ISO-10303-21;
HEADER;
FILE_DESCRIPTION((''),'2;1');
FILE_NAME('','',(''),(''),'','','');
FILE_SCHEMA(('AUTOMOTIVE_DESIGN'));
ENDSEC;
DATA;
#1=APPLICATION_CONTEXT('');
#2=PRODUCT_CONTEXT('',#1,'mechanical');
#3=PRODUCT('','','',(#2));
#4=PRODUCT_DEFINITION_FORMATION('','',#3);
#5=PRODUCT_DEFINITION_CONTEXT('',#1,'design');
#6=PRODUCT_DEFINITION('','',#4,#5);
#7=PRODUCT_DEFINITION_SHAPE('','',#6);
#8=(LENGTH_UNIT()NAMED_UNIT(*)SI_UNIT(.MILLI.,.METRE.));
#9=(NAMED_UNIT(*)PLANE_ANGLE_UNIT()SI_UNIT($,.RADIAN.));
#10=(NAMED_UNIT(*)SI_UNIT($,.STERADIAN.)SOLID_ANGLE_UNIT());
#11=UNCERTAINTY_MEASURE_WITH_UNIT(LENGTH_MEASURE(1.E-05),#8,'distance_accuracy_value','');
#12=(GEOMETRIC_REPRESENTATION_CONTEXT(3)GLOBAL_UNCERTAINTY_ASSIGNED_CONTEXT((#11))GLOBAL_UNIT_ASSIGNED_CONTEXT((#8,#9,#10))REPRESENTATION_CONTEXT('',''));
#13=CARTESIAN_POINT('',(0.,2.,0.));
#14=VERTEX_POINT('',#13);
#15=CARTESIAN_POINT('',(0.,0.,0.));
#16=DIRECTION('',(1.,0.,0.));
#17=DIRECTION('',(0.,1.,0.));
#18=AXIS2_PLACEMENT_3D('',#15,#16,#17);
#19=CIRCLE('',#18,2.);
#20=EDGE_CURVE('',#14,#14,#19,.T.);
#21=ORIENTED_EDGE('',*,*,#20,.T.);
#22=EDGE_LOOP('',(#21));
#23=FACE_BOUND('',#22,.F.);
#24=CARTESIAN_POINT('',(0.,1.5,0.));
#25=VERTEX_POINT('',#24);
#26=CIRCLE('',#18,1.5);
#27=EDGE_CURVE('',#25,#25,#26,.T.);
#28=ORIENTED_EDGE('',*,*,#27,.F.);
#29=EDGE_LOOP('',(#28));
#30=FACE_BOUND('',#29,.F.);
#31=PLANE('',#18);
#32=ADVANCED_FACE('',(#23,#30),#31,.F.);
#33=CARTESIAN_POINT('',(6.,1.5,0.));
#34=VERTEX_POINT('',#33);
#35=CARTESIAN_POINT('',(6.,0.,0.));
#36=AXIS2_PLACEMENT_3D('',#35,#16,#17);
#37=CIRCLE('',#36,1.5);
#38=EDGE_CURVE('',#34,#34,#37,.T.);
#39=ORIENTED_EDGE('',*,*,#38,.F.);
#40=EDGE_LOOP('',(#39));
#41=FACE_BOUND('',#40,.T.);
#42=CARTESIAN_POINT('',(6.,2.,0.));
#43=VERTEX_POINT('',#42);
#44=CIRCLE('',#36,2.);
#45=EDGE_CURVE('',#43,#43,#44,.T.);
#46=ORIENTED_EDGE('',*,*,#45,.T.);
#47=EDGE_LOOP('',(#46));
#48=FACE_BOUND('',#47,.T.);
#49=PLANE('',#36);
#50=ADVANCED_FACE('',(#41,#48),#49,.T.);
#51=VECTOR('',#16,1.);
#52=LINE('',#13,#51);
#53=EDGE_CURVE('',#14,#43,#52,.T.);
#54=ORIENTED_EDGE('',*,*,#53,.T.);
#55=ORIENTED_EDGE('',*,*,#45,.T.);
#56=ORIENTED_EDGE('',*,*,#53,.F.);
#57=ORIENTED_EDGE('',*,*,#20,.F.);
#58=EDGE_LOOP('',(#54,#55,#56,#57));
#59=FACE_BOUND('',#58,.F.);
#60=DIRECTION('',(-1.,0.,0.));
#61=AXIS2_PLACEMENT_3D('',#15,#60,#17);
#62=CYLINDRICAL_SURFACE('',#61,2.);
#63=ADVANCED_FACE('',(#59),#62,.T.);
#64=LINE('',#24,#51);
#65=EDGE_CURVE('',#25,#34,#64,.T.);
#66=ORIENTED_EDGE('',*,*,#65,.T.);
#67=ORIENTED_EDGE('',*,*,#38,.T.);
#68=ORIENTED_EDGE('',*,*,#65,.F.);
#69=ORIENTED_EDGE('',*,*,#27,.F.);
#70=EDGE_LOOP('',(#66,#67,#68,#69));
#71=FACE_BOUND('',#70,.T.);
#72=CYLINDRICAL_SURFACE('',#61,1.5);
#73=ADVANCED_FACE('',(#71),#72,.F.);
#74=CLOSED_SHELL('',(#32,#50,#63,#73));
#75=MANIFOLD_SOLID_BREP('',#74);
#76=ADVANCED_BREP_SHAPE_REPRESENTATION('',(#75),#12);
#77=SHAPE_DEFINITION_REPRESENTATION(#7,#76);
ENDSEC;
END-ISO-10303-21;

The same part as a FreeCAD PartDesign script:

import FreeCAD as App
import Part
import Sketcher
from FreeCAD import Vector

doc = App.newDocument("Part")
body = doc.addObject("PartDesign::Body", "Body")

# Sketch on YZ plane
sketch1 = body.newObject("Sketcher::SketchObject", "Sketch")
sketch1.AttachmentSupport = (doc.getObject("YZ_Plane"), [""])
sketch1.MapMode = "FlatFace"
sketch1.addGeometry([
    Part.Circle(Vector(0, 0, 0), Vector(0, 0, 1), 2),
    Part.Circle(Vector(0, 0, 0), Vector(0, 0, 1), 1.5),
], False)
sketch1.addConstraint([
    Sketcher.Constraint("Coincident", 0, 3, -1, 1),
    Sketcher.Constraint("Coincident", 1, 3, -1, 1),
    Sketcher.Constraint("Diameter", 0, 4.0),
    Sketcher.Constraint("Diameter", 1, 3.0),
])
pad1 = body.newObject("PartDesign::Pad", "Pad")
pad1.Profile = sketch1
pad1.Length = 6

doc.recompute()
